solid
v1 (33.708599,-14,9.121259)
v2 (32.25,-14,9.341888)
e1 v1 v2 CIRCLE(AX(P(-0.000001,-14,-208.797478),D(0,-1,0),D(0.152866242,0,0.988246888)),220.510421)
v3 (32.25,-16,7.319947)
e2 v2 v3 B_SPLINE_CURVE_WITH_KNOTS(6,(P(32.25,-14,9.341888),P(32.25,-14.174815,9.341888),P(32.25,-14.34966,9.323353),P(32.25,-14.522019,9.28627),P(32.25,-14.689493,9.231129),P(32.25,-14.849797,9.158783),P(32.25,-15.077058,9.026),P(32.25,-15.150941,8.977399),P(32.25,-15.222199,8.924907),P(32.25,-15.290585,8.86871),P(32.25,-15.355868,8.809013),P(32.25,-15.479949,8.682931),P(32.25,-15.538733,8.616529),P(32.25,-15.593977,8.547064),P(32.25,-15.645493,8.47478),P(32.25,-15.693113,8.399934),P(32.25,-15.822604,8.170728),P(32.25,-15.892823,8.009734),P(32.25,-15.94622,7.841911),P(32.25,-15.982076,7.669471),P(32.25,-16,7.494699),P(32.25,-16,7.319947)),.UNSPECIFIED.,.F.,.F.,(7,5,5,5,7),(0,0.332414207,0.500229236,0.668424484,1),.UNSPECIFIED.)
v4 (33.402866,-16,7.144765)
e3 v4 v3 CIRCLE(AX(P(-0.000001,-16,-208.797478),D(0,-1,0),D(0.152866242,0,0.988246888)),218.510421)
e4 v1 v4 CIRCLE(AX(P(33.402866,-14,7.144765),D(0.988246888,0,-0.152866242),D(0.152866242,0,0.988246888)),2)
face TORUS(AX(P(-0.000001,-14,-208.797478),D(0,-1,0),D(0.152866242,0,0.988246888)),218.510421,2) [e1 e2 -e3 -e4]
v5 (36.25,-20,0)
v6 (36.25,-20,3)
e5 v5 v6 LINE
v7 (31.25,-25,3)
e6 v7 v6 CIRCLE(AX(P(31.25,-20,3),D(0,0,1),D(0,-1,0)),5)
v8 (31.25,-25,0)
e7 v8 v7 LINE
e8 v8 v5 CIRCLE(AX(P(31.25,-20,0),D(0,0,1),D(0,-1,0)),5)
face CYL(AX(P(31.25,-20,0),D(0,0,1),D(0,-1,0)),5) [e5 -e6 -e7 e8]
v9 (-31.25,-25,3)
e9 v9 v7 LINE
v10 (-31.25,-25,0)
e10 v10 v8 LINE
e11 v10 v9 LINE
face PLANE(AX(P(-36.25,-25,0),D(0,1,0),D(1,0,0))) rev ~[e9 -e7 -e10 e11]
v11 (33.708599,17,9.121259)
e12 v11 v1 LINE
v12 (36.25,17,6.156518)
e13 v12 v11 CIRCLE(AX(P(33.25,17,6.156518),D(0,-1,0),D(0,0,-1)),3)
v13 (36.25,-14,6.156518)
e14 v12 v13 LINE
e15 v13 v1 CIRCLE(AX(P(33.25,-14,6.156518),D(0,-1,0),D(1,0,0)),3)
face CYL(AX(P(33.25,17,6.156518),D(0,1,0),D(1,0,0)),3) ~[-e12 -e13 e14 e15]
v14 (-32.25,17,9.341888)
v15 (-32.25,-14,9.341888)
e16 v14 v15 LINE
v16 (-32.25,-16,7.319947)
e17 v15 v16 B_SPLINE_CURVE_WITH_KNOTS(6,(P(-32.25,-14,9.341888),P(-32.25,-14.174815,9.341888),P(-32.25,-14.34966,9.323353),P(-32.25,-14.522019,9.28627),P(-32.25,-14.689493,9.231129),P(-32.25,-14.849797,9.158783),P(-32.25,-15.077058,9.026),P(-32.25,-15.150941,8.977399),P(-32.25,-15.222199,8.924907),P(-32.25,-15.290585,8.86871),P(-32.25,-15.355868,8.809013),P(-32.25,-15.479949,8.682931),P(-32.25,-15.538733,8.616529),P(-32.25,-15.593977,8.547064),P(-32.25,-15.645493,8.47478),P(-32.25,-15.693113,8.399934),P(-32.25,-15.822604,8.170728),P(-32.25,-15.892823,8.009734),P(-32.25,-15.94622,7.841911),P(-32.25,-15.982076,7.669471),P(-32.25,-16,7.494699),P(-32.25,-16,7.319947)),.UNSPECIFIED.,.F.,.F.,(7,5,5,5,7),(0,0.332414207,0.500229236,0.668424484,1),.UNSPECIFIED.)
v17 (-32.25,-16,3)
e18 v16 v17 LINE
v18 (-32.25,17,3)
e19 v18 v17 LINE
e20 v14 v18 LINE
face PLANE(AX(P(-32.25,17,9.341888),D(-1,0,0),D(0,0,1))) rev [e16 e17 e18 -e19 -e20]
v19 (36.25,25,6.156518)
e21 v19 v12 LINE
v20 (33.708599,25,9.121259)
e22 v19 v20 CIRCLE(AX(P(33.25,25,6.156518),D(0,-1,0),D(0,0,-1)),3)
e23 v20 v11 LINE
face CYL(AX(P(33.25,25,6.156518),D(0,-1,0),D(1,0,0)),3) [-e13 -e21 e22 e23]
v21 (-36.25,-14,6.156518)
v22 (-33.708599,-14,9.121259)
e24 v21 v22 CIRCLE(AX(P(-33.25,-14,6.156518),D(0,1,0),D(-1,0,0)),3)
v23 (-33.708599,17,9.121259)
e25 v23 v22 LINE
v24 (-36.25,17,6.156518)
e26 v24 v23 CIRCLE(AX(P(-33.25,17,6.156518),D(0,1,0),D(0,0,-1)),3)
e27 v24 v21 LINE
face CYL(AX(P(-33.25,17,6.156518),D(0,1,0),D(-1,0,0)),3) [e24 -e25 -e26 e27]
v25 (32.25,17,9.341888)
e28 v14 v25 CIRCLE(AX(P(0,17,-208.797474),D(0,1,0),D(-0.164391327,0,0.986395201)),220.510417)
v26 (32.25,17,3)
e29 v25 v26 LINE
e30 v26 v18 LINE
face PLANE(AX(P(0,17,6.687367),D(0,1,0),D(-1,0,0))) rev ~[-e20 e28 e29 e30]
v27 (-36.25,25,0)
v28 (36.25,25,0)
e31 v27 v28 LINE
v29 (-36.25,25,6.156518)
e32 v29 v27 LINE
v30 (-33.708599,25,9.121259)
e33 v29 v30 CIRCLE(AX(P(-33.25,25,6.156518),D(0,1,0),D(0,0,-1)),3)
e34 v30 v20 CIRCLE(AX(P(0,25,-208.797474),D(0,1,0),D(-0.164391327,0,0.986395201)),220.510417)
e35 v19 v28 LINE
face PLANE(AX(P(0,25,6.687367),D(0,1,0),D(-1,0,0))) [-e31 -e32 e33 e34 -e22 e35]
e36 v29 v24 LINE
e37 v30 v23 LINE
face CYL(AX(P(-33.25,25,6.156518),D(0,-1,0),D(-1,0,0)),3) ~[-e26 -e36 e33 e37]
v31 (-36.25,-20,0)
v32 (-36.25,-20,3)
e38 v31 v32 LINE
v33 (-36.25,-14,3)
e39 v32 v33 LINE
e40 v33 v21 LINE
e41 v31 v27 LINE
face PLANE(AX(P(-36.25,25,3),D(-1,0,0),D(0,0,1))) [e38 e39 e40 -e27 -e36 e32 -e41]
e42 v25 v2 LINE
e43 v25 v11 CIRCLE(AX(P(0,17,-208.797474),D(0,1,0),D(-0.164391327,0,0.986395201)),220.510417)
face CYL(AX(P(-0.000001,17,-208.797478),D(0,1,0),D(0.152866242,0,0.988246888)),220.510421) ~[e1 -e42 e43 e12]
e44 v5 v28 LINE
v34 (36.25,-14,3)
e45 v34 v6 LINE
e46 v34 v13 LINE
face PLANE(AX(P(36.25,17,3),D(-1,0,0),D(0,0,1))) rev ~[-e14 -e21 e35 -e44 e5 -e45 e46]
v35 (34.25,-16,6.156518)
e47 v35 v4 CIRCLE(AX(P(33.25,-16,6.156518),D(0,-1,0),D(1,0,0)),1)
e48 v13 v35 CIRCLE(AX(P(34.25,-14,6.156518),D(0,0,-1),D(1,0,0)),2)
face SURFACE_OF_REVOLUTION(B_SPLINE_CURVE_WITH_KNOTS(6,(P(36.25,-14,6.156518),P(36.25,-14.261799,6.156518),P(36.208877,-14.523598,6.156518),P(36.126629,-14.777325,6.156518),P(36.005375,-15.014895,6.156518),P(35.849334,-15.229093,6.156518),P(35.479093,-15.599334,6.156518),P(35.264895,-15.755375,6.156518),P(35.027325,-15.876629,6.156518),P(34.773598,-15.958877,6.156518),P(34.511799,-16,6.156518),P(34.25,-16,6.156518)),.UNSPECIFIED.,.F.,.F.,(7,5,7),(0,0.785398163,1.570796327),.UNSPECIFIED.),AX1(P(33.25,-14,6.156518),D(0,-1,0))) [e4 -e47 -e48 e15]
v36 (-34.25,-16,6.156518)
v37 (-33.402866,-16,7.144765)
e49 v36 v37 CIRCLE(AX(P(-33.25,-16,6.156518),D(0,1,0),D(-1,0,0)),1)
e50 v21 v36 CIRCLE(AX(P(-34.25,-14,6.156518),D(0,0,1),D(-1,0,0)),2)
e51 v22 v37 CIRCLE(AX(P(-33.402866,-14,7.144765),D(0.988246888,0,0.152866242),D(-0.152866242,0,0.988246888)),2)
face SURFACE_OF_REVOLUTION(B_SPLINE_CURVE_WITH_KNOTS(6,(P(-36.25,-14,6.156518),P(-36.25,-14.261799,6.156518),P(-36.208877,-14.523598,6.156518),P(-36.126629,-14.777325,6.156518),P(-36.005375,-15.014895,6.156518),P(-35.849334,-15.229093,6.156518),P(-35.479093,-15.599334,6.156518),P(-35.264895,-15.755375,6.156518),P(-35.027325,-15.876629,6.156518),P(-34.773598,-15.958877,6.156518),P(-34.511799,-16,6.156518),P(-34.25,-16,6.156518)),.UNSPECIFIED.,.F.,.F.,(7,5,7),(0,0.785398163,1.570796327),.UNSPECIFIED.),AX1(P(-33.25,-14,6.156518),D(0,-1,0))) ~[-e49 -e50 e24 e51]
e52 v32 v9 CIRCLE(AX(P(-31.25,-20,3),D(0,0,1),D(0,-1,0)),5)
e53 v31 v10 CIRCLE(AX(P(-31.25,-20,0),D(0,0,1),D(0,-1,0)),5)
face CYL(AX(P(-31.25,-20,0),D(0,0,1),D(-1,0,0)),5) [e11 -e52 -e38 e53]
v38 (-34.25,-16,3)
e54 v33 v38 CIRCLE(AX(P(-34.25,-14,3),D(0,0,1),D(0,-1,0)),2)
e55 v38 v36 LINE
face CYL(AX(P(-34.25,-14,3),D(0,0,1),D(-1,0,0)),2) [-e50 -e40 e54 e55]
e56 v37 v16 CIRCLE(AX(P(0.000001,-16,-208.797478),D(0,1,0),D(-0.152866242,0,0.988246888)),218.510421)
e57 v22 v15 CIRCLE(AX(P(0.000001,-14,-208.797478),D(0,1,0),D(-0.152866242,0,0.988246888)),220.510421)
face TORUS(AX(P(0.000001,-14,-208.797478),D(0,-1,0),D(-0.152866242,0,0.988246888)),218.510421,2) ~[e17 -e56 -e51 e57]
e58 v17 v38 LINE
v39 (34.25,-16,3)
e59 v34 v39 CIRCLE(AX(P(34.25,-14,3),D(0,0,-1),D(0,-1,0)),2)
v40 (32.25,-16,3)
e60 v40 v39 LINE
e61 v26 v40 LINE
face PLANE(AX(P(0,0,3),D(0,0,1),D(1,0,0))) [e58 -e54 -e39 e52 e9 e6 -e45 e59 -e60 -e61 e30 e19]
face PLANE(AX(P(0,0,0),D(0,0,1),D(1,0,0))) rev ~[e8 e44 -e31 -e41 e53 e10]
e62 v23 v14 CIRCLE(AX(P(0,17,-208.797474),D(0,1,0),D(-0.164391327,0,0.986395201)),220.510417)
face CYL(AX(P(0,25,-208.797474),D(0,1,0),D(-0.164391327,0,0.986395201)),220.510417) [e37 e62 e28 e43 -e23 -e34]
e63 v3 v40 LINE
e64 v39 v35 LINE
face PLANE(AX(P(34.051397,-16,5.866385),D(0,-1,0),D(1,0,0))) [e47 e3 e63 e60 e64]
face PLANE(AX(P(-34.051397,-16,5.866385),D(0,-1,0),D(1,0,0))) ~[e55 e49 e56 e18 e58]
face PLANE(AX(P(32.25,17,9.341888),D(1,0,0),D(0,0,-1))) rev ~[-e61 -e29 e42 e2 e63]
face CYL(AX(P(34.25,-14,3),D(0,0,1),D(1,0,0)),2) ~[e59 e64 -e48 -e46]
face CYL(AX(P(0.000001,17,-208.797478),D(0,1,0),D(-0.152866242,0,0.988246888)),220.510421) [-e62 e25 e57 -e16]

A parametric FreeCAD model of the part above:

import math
import FreeCAD as App
import Part
import Sketcher
Q = App.Units.Quantity


def edges_at(feature, points):
    """Names of the edges that pass closest to the given points."""
    edges = feature.Shape.Edges
    near = lambda p: min(range(len(edges)), key=lambda i: edges[i].distToShape(Part.Vertex(*p))[0])
    return sorted({f"Edge{near(p) + 1}" for p in points})


def add_polygon(sketch, points):
    """Adds a closed chain of lines whose ends are joined by coincident constraints."""
    first, n = sketch.GeometryCount, len(points)
    for a, b in zip(points, points[1:] + points[:1]):
        sketch.addGeometry(Part.LineSegment(App.Vector(*a, 0), App.Vector(*b, 0)), False)
    for i in range(n):
        sketch.addConstraint(Sketcher.Constraint("Coincident", first + i, 2, first + (i + 1) % n, 1))

doc = App.newDocument("Part")
body = doc.addObject("PartDesign::Body", "Body")

# Sketch on XY plane
sketch1 = doc.addObject("Sketcher::SketchObject", "Sketch")
body.addObject(sketch1)
sketch1.AttachmentSupport = (doc.XY_Plane, [""])
sketch1.MapMode = "FlatFace"
add_polygon(sketch1, [(-36, 25), (-36, -25), (36, -25), (36, 25)])  # lines 0-3
sketch1.addConstraint([
    Sketcher.Constraint("Vertical", 0),
    Sketcher.Constraint("Horizontal", 1),
    Sketcher.Constraint("Vertical", 2),
    Sketcher.Constraint("Horizontal", 3),
    Sketcher.Constraint("Symmetric", 0, 2, 2, 2, -1, 1),
    Sketcher.Constraint("DistanceY", 0, 2, 0, 1, Q("50 mm")),
    Sketcher.Constraint("DistanceX", 1, 1, 1, 2, Q("72.5 mm")),
])
pad1 = doc.addObject("PartDesign::Pad", "Pad")
body.addObject(pad1)
pad1.Profile = sketch1
pad1.Length = 3
doc.recompute()

fillet = doc.addObject("PartDesign::Fillet", "Fillet")
body.addObject(fillet)
fillet.Base = (pad1, edges_at(pad1, [(36.25, -25, 1.5), (-36.25, -25, 1.5)]))
fillet.Radius = 5

# Sketch on XZ plane
sketch2 = doc.addObject("Sketcher::SketchObject", "Sketch001")
body.addObject(sketch2)
sketch2.AttachmentSupport = (doc.XZ_Plane, [""])
sketch2.MapMode = "FlatFace"
sketch2.AttachmentOffset = App.Placement(App.Vector(0, 0, -25), App.Rotation())
sketch2.addGeometry([
    Part.LineSegment(App.Vector(-36, 3, 0), App.Vector(-36, 9, 0)),
    Part.ArcOfCircle(Part.Circle(App.Vector(0, -209, 0), App.Vector(0, 0, 1), 221), math.radians(80.54), math.radians(99.46)),
    Part.LineSegment(App.Vector(36, 9, 0), App.Vector(36, 3, 0)),
    Part.LineSegment(App.Vector(36, 3, 0), App.Vector(-36, 3, 0)),
], False)
sketch2.addConstraint([
    Sketcher.Constraint("Coincident", 0, 2, 1, 2),
    Sketcher.Constraint("Coincident", 1, 1, 2, 1),
    Sketcher.Constraint("Coincident", 2, 2, 3, 1),
    Sketcher.Constraint("Coincident", 3, 2, 0, 1),
    Sketcher.Constraint("Vertical", 0),
    Sketcher.Constraint("Vertical", 2),
    Sketcher.Constraint("Horizontal", 3),
    Sketcher.Constraint("Symmetric", 0, 2, 1, 1, -2),
    Sketcher.Constraint("DistanceX", 3, 2, 3, 1, Q("72.5 mm")),
    Sketcher.Constraint("DistanceY", -1, 1, 2, 2, Q("3 mm")),
    Sketcher.Constraint("Radius", 1, Q("220.510417 mm")),
    Sketcher.Constraint("DistanceY", 0, 1, 0, 2, Q("5.712943 mm")),
])
pad2 = doc.addObject("PartDesign::Pad", "Pad001")
body.addObject(pad2)
pad2.Profile = sketch2
pad2.Length = 8
doc.recompute()

fillet2 = doc.addObject("PartDesign::Fillet", "Fillet001")
body.addObject(fillet2)
fillet2.Base = (pad2, edges_at(pad2, [(36.25, 21, 8.713), (-36.25, 21, 8.713)]))
fillet2.Radius = 3

# Sketch on XZ plane
sketch3 = doc.addObject("Sketcher::SketchObject", "Sketch002")
body.addObject(sketch3)
sketch3.AttachmentSupport = (doc.XZ_Plane, [""])
sketch3.MapMode = "FlatFace"
sketch3.AttachmentOffset = App.Placement(App.Vector(0, 0, -17), App.Rotation())
sketch3.addGeometry([
    Part.LineSegment(App.Vector(32.2, 3, 0), App.Vector(36.2, 3, 0)),  # 0
    Part.LineSegment(App.Vector(36.2, 3, 0), App.Vector(36.2, 6.2, 0)),  # 1
    Part.ArcOfCircle(Part.Circle(App.Vector(33.2, 6.2, 0), App.Vector(0, 0, 1), 3), math.radians(0), math.radians(81)),  # 2
    Part.ArcOfCircle(Part.Circle(App.Vector(0, -208.8, 0), App.Vector(0, 0, 1), 220.5), math.radians(81.21), math.radians(81.59)),  # 3
    Part.LineSegment(App.Vector(32.2, 9.3, 0), App.Vector(32.2, 3, 0)),  # 4
], False)
sketch3.addConstraint([
    Sketcher.Constraint("Coincident", 0, 2, 1, 1),
    Sketcher.Constraint("Tangent", 1, 2, 2, 1),
    Sketcher.Constraint("Tangent", 2, 2, 3, 1),
    Sketcher.Constraint("Coincident", 3, 2, 4, 1),
    Sketcher.Constraint("Coincident", 4, 2, 0, 1),
    Sketcher.Constraint("Horizontal", 0),
    Sketcher.Constraint("Vertical", 1),
    Sketcher.Constraint("Vertical", 4),
    Sketcher.Constraint("PointOnObject", 3, 3, -2),
    Sketcher.Constraint("Radius", 2, Q("3 mm")),
    Sketcher.Constraint("DistanceX", 0, 1, 0, 2, Q("4 mm")),
    Sketcher.Constraint("DistanceY", -1, 1, 0, 2, Q("3 mm")),
    Sketcher.Constraint("DistanceX", -1, 1, 2, 3, Q("33.25 mm")),
    Sketcher.Constraint("Radius", 3, Q("220.510421 mm")),
    Sketcher.Constraint("DistanceY", 1, 1, 1, 2, Q("3.156518 mm")),
])
pad3 = doc.addObject("PartDesign::Pad", "Pad002")
body.addObject(pad3)
pad3.Profile = sketch3
pad3.Length = 33
doc.recompute()

fillet3 = doc.addObject("PartDesign::Fillet", "Fillet002")
body.addObject(fillet3)
fillet3.Base = (pad3, edges_at(pad3, [(36.25, -16, 4.578)]))
fillet3.Radius = 2
body2 = doc.addObject("PartDesign::Body", "Body001")
doc.recompute()

body2.BaseFeature = body
doc.recompute()

mirroring = doc.addObject("Part::Mirroring", "Mirroring")
mirroring.Source = body
mirroring.Base = App.Vector(0, 0, 0)
mirroring.Normal = App.Vector(1, 0, 0)
body3 = doc.addObject("PartDesign::Body", "Body002")
body3.BaseFeature = mirroring
boolean = doc.addObject("PartDesign::Boolean", "Boolean")
body2.addObject(boolean)
boolean.Type = "Fuse"
boolean.addObjects([body3])
doc.recompute()
mirroring.Visibility = False

doc.recompute()
